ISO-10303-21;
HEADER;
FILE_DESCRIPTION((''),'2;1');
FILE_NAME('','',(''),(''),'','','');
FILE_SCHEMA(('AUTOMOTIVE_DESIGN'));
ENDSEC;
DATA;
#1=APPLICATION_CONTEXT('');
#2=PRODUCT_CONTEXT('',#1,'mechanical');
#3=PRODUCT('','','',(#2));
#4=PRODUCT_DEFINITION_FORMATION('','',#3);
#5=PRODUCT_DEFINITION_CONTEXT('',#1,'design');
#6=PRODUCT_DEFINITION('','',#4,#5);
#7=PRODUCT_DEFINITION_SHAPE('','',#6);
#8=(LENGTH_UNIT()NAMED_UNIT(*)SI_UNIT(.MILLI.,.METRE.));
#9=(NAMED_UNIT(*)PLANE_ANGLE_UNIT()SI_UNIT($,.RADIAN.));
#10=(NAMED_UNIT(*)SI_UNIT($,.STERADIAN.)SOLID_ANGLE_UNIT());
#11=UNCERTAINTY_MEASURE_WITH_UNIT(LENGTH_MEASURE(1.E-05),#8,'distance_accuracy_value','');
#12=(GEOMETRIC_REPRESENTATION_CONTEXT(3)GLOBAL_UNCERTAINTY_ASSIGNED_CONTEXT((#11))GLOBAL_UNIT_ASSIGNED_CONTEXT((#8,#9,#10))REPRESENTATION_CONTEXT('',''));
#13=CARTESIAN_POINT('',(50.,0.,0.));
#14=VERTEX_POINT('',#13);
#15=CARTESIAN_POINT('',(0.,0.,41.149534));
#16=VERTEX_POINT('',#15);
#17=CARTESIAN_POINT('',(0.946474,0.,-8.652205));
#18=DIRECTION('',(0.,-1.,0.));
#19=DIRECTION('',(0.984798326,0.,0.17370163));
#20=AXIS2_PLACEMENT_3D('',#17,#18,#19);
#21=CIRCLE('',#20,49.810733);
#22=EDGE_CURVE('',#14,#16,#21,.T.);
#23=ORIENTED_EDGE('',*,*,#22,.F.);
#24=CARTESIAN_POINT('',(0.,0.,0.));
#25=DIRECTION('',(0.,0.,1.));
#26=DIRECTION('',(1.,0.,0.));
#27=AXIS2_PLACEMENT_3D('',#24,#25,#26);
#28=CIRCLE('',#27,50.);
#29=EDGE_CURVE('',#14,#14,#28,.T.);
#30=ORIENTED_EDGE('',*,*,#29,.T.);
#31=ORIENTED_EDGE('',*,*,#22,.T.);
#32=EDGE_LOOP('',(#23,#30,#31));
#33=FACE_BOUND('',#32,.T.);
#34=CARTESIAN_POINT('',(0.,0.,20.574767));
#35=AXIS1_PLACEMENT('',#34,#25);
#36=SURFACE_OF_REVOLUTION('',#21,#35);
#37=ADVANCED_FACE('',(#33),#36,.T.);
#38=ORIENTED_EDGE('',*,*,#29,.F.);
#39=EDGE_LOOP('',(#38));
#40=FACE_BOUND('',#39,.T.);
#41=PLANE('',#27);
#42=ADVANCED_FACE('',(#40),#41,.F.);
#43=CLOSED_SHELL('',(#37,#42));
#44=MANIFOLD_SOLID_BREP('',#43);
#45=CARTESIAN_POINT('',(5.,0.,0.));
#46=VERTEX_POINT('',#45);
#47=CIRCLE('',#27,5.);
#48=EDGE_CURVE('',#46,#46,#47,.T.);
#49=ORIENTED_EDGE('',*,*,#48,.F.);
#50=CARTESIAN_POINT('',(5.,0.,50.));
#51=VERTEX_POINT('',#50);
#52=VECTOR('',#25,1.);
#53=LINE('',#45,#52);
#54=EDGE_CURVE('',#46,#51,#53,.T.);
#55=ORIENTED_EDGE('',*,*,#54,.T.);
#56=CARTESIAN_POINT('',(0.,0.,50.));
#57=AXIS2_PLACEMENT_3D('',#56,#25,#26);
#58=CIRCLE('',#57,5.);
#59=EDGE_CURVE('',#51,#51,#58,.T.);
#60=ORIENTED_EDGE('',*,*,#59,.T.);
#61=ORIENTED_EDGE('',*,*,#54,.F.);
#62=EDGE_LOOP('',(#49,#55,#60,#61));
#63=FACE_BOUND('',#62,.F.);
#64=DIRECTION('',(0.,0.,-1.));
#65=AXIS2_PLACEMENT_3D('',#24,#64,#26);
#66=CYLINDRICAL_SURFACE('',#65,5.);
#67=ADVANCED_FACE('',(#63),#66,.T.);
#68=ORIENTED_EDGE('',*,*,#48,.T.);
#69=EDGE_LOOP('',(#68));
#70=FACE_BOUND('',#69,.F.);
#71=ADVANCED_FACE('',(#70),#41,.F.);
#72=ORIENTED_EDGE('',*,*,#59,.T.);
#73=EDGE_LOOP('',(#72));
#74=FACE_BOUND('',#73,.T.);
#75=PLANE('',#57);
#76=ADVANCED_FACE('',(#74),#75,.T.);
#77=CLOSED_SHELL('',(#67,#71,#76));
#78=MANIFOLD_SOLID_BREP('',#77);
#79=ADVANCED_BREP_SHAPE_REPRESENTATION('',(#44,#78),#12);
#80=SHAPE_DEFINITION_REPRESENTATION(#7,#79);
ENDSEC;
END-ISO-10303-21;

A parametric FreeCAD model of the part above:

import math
import FreeCAD as App
import Part
import Sketcher
from FreeCAD import Vector
Q = App.Units.Quantity

doc = App.newDocument("Part")
body = doc.addObject("PartDesign::Body", "Body")

# Sketch on XZ plane
sketch1 = body.newObject("Sketcher::SketchObject", "Sketch")
sketch1.AttachmentSupport = (doc.getObject("XZ_Plane"), [""])
sketch1.MapMode = "FlatFace"
sketch1.addGeometry(Part.LineSegment(Vector(0, 41, 0), Vector(0, 0, 0)), False)
sketch1.addGeometry(Part.LineSegment(Vector(0, 0, 0), Vector(50, 0, 0)), False)
sketch1.addGeometry(Part.ArcOfCircle(Part.Circle(Vector(1, -9, 0), Vector(0, 0, 1), 50), math.radians(10), math.radians(91)), False)
sketch1.addConstraint(Sketcher.Constraint("Coincident", 0, 2, 1, 1))
sketch1.addConstraint(Sketcher.Constraint("Coincident", 1, 2, 2, 1))
sketch1.addConstraint(Sketcher.Constraint("Coincident", 2, 2, 0, 1))
sketch1.addConstraint(Sketcher.Constraint("Vertical", 0))
sketch1.addConstraint(Sketcher.Constraint("Horizontal", 1))
sketch1.addConstraint(Sketcher.Constraint("Coincident", 0, 2, -1, 1))
sketch1.addConstraint(Sketcher.Constraint("DistanceX", 1, 1, 1, 2, Q("50 mm")))
sketch1.addConstraint(Sketcher.Constraint("Radius", 2, Q("49.810733 mm")))
sketch1.addConstraint(Sketcher.Constraint("DistanceY", 0, 2, 0, 1, Q("41.149534 mm")))
revolution = body.newObject("PartDesign::Revolution", "Revolution")
revolution.Profile = sketch1
revolution.ReferenceAxis = (sketch1, ["V_Axis"])
revolution.Angle = 360
body2 = doc.addObject("PartDesign::Body", "Body001")

# Sketch on XY plane
sketch2 = body2.newObject("Sketcher::SketchObject", "Sketch001")
sketch2.AttachmentSupport = (doc.getObject("XY_Plane001"), [""])
sketch2.MapMode = "FlatFace"
sketch2.addGeometry(Part.Circle(Vector(0, 0, 0), Vector(0, 0, 1), 5), False)
sketch2.addConstraint(Sketcher.Constraint("Coincident", 0, 3, -1, 1))
sketch2.addConstraint(Sketcher.Constraint("Diameter", 0, Q("10 mm")))
pad1 = body2.newObject("PartDesign::Pad", "Pad")
pad1.Profile = sketch2
pad1.Length = 50

doc.recompute()
